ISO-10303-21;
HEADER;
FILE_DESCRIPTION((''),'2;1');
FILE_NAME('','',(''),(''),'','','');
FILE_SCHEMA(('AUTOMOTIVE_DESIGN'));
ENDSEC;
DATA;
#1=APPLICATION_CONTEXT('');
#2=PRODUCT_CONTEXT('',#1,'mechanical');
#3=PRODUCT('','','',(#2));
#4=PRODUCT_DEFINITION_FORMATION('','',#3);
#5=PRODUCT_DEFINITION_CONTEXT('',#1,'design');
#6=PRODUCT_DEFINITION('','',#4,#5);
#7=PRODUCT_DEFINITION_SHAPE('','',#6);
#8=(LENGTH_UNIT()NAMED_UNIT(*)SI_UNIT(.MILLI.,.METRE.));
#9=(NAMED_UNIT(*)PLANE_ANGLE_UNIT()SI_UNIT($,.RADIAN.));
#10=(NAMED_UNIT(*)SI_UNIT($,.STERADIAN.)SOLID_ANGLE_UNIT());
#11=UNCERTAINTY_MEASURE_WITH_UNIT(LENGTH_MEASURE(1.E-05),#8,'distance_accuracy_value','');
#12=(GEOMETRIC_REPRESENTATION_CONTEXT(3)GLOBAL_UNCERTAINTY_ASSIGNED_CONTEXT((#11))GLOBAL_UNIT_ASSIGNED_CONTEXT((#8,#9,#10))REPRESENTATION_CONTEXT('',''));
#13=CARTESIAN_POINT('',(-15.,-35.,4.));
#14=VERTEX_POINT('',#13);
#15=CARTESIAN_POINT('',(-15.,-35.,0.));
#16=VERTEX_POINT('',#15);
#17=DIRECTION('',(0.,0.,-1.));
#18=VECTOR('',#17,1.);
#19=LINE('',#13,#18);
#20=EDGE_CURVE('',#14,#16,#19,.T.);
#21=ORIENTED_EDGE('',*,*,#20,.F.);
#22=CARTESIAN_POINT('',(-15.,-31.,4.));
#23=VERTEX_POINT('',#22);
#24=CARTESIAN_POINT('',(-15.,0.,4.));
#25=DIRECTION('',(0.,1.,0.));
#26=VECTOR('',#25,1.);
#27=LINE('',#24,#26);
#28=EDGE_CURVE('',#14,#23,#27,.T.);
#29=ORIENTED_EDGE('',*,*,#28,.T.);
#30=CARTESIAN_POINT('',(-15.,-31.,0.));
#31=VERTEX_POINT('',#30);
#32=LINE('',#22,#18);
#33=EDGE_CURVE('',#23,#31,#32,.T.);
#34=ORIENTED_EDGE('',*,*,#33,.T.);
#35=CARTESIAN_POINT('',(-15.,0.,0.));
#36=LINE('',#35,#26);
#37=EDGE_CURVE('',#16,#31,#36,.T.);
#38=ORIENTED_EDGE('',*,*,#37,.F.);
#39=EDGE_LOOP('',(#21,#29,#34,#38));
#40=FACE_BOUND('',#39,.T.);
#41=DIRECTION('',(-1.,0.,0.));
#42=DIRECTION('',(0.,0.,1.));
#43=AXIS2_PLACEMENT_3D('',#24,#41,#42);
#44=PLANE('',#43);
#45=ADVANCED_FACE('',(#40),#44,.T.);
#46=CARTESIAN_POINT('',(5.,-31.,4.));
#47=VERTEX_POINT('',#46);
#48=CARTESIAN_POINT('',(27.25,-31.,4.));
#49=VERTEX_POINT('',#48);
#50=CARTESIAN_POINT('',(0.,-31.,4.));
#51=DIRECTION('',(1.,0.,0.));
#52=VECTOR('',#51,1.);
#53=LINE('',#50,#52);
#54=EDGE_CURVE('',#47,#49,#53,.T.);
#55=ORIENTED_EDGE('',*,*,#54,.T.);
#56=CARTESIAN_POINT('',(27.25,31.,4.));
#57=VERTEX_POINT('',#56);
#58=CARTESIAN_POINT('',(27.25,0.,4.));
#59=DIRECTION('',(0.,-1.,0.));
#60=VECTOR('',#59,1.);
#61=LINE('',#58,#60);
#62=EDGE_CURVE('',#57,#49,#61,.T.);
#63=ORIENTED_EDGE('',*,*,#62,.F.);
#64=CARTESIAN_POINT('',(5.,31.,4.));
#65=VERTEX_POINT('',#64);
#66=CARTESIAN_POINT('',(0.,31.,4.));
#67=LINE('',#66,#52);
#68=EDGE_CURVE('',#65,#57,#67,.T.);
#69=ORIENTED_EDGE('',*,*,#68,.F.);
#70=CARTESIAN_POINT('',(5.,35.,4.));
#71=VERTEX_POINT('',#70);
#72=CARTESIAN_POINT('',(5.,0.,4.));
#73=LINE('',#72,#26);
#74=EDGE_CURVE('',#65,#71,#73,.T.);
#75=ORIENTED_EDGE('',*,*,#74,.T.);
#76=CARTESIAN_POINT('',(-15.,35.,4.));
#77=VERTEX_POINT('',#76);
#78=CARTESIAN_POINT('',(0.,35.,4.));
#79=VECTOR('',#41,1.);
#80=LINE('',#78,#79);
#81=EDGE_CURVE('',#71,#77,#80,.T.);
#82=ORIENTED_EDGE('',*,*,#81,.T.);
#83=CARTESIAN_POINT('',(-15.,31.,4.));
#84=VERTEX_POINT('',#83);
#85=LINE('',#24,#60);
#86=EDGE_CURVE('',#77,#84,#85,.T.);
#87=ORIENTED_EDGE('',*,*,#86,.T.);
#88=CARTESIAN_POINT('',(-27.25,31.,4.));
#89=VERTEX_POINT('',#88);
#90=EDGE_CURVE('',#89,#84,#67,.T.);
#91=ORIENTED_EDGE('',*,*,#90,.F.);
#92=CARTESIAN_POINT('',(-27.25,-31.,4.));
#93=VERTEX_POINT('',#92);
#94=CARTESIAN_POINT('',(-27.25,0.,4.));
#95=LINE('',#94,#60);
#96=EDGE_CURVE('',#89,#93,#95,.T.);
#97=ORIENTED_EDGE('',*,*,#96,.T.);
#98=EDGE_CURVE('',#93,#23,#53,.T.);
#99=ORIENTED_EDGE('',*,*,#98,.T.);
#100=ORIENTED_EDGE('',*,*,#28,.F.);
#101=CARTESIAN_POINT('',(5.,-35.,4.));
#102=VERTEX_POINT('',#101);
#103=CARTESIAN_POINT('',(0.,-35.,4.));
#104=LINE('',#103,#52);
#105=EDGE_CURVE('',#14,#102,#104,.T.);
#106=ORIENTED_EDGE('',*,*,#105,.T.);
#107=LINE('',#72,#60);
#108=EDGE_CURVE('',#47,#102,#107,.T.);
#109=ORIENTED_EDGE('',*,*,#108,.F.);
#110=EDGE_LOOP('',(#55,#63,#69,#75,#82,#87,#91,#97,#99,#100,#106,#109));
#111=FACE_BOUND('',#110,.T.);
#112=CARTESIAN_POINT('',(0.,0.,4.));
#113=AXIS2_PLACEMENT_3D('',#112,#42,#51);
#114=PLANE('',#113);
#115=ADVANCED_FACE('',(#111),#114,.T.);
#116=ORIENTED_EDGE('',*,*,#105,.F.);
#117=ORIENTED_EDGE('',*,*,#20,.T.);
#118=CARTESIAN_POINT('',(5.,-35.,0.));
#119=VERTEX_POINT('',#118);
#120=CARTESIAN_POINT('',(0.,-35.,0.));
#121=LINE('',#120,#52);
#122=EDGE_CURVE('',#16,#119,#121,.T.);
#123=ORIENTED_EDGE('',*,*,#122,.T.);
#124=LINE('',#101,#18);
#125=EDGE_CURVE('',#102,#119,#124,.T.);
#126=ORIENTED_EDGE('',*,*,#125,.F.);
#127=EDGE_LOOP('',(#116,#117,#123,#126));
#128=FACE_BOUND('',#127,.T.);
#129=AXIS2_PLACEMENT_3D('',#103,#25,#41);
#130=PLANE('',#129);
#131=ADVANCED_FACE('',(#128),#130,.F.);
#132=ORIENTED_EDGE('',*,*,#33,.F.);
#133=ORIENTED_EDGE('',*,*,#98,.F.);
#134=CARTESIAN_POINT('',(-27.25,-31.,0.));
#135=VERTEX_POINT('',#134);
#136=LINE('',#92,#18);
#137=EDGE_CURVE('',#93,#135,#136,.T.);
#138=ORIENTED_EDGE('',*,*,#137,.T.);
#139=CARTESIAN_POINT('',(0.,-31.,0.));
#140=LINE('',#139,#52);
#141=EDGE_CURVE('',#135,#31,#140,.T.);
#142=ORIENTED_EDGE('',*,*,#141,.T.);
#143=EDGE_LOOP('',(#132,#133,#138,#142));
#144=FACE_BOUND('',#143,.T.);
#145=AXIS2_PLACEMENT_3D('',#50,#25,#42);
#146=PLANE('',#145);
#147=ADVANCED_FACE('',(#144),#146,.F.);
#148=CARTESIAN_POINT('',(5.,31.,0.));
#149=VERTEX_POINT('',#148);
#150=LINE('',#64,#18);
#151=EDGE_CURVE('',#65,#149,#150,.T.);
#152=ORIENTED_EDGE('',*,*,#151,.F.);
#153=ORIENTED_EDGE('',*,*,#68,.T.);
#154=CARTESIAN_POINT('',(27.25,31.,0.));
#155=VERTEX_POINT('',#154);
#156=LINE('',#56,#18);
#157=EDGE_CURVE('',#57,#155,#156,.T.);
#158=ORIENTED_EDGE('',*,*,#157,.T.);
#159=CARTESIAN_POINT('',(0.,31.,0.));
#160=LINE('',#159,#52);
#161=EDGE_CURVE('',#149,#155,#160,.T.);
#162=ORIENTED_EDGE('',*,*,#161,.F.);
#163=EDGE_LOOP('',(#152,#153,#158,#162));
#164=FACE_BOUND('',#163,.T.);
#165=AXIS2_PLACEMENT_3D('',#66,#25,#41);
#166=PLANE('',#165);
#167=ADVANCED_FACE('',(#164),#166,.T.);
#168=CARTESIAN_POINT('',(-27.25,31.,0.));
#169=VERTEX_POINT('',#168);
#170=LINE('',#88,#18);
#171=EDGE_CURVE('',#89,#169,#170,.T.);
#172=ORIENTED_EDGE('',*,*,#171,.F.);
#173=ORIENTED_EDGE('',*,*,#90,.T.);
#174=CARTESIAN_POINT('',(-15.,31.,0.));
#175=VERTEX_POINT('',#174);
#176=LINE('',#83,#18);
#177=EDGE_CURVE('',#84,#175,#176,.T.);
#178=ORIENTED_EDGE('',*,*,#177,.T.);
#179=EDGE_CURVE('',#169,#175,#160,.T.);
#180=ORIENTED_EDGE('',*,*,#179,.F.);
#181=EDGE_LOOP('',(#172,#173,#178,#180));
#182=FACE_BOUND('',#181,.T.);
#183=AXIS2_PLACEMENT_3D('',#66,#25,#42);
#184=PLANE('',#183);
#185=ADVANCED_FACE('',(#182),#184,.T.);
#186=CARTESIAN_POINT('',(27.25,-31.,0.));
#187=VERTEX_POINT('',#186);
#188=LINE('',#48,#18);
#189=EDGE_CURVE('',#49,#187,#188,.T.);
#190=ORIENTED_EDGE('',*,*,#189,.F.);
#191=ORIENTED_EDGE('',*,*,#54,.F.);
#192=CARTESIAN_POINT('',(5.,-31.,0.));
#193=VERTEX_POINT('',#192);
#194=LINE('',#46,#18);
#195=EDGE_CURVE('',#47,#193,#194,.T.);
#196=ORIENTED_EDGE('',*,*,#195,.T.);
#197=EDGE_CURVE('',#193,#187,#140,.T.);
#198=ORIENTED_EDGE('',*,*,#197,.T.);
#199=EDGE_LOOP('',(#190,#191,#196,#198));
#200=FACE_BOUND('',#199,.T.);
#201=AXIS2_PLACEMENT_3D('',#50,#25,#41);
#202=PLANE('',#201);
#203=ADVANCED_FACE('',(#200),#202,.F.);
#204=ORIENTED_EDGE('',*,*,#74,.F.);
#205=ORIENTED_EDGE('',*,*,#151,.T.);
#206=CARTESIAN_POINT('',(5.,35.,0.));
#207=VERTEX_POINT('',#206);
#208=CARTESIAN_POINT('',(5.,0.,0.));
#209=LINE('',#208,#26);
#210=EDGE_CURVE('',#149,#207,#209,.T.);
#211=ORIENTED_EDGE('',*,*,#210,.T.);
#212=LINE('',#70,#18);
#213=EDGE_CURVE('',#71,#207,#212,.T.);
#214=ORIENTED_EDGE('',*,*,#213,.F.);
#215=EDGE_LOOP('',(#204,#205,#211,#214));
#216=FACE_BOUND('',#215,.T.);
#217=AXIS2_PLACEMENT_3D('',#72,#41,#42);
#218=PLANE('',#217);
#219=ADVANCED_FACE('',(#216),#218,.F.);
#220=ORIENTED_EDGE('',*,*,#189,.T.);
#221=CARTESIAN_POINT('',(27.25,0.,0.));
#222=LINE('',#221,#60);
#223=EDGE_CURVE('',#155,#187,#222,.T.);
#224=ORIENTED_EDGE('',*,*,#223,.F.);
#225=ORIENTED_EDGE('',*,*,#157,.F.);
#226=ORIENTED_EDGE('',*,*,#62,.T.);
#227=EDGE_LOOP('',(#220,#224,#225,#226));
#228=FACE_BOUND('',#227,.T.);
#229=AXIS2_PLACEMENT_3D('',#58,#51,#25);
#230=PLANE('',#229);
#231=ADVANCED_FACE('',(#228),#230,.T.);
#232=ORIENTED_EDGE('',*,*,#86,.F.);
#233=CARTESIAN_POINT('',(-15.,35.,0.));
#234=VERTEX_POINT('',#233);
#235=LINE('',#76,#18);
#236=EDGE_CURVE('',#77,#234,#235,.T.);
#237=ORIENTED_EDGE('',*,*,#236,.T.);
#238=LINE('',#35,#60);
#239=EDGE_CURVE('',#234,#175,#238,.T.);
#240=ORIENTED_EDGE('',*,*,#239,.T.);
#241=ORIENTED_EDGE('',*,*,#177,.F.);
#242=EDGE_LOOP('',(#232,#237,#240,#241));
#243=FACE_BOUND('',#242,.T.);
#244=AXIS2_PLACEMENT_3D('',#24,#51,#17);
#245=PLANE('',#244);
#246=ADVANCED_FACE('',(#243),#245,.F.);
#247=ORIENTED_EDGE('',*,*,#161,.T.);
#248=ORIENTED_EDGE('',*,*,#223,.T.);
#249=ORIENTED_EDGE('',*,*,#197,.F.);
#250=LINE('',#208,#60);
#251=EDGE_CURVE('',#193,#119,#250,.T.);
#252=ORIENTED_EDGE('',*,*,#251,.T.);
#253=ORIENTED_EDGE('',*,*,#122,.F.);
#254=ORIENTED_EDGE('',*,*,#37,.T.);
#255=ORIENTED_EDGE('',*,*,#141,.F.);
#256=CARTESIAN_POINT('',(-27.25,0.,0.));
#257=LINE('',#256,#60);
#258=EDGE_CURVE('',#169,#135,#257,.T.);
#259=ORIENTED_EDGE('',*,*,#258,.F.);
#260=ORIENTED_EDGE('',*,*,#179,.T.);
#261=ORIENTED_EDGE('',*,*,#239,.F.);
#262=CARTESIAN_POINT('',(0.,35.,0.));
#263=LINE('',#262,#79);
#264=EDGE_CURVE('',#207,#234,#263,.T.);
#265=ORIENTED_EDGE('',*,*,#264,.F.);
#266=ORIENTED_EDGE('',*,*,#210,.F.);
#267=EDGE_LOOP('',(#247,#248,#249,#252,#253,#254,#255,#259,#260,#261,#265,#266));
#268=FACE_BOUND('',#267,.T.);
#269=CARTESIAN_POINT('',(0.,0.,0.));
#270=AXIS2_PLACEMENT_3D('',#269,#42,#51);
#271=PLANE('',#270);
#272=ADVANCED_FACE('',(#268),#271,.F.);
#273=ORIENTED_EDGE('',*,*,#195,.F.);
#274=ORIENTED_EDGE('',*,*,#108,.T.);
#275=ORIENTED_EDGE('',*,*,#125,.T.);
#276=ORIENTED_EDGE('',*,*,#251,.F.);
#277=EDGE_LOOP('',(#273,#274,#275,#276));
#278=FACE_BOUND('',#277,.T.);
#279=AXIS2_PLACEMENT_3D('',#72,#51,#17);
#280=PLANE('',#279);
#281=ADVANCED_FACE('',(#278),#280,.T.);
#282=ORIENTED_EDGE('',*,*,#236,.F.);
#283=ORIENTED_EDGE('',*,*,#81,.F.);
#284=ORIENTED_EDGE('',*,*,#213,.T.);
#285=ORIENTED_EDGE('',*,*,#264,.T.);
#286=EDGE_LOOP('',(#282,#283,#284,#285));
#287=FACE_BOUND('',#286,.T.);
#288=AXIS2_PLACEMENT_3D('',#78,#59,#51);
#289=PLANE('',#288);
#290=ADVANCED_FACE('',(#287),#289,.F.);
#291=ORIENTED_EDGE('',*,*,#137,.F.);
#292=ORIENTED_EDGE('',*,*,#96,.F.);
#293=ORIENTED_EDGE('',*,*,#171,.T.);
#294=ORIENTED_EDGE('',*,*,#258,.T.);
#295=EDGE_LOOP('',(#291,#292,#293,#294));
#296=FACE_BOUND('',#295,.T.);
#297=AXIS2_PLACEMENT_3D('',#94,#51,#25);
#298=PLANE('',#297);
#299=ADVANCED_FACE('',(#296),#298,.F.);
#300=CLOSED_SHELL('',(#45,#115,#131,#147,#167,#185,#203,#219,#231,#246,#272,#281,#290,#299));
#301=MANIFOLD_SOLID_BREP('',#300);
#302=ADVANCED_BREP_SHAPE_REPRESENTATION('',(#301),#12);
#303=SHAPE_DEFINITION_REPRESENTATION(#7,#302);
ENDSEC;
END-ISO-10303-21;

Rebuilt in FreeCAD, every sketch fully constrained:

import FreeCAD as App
import Part
import Sketcher


def add_polygon(sketch, points):
    """Adds a closed chain of lines whose ends are joined by coincident constraints."""
    first, n = sketch.GeometryCount, len(points)
    for a, b in zip(points, points[1:] + points[:1]):
        sketch.addGeometry(Part.LineSegment(App.Vector(*a, 0), App.Vector(*b, 0)), False)
    for i in range(n):
        sketch.addConstraint(Sketcher.Constraint("Coincident", first + i, 2, first + (i + 1) % n, 1))

doc = App.newDocument("Part")
body = doc.addObject("PartDesign::Body", "Body")

sketch1 = body.newObject("Sketcher::SketchObject", "Sketch")
sketch1.AttachmentSupport = (doc.getObject("XY_Plane"), [""])
sketch1.MapMode = "FlatFace"
add_polygon(sketch1, [(5, 31), (5, 35), (-15, 35), (-15, 31), (-27.2, 31), (-27.2, -31), (-15, -31), (-15, -35), (5, -35), (5, -31), (27.2, -31), (27.2, 31)])
sketch1.addConstraint(Sketcher.Constraint("Vertical", 0))
sketch1.addConstraint(Sketcher.Constraint("Horizontal", 1))
sketch1.addConstraint(Sketcher.Constraint("Vertical", 2))
sketch1.addConstraint(Sketcher.Constraint("Horizontal", 3))
sketch1.addConstraint(Sketcher.Constraint("Vertical", 4))
sketch1.addConstraint(Sketcher.Constraint("Horizontal", 5))
sketch1.addConstraint(Sketcher.Constraint("Vertical", 6))
sketch1.addConstraint(Sketcher.Constraint("Horizontal", 7))
sketch1.addConstraint(Sketcher.Constraint("Vertical", 8))
sketch1.addConstraint(Sketcher.Constraint("Horizontal", 9))
sketch1.addConstraint(Sketcher.Constraint("Vertical", 10))
sketch1.addConstraint(Sketcher.Constraint("Horizontal", 11))
sketch1.addConstraint(Sketcher.Constraint("Symmetric", 3, 2, 9, 2, -1, 1))
sketch1.addConstraint(Sketcher.Constraint("Symmetric", 2, 2, 5, 2, -1))
sketch1.addConstraint(Sketcher.Constraint("Symmetric", 0, 2, 7, 2, -1))
sketch1.addConstraint(Sketcher.Constraint("Horizontal", 3, 2, 10, 2))
sketch1.addConstraint(Sketcher.Constraint("DistanceX", 1, 2, 1, 1, 20.0))
sketch1.addConstraint(Sketcher.Constraint("DistanceY", 0, 1, 0, 2, 4.0))
sketch1.addConstraint(Sketcher.Constraint("DistanceY", 4, 2, 4, 1, 62.0))
sketch1.addConstraint(Sketcher.Constraint("DistanceX", -1, 1, 0, 2, 5.0))
sketch1.addConstraint(Sketcher.Constraint("DistanceX", 3, 2, 3, 1, 12.25))
pad1 = body.newObject("PartDesign::Pad", "Pad")
pad1.Profile = sketch1
pad1.Length = 4

doc.recompute()
